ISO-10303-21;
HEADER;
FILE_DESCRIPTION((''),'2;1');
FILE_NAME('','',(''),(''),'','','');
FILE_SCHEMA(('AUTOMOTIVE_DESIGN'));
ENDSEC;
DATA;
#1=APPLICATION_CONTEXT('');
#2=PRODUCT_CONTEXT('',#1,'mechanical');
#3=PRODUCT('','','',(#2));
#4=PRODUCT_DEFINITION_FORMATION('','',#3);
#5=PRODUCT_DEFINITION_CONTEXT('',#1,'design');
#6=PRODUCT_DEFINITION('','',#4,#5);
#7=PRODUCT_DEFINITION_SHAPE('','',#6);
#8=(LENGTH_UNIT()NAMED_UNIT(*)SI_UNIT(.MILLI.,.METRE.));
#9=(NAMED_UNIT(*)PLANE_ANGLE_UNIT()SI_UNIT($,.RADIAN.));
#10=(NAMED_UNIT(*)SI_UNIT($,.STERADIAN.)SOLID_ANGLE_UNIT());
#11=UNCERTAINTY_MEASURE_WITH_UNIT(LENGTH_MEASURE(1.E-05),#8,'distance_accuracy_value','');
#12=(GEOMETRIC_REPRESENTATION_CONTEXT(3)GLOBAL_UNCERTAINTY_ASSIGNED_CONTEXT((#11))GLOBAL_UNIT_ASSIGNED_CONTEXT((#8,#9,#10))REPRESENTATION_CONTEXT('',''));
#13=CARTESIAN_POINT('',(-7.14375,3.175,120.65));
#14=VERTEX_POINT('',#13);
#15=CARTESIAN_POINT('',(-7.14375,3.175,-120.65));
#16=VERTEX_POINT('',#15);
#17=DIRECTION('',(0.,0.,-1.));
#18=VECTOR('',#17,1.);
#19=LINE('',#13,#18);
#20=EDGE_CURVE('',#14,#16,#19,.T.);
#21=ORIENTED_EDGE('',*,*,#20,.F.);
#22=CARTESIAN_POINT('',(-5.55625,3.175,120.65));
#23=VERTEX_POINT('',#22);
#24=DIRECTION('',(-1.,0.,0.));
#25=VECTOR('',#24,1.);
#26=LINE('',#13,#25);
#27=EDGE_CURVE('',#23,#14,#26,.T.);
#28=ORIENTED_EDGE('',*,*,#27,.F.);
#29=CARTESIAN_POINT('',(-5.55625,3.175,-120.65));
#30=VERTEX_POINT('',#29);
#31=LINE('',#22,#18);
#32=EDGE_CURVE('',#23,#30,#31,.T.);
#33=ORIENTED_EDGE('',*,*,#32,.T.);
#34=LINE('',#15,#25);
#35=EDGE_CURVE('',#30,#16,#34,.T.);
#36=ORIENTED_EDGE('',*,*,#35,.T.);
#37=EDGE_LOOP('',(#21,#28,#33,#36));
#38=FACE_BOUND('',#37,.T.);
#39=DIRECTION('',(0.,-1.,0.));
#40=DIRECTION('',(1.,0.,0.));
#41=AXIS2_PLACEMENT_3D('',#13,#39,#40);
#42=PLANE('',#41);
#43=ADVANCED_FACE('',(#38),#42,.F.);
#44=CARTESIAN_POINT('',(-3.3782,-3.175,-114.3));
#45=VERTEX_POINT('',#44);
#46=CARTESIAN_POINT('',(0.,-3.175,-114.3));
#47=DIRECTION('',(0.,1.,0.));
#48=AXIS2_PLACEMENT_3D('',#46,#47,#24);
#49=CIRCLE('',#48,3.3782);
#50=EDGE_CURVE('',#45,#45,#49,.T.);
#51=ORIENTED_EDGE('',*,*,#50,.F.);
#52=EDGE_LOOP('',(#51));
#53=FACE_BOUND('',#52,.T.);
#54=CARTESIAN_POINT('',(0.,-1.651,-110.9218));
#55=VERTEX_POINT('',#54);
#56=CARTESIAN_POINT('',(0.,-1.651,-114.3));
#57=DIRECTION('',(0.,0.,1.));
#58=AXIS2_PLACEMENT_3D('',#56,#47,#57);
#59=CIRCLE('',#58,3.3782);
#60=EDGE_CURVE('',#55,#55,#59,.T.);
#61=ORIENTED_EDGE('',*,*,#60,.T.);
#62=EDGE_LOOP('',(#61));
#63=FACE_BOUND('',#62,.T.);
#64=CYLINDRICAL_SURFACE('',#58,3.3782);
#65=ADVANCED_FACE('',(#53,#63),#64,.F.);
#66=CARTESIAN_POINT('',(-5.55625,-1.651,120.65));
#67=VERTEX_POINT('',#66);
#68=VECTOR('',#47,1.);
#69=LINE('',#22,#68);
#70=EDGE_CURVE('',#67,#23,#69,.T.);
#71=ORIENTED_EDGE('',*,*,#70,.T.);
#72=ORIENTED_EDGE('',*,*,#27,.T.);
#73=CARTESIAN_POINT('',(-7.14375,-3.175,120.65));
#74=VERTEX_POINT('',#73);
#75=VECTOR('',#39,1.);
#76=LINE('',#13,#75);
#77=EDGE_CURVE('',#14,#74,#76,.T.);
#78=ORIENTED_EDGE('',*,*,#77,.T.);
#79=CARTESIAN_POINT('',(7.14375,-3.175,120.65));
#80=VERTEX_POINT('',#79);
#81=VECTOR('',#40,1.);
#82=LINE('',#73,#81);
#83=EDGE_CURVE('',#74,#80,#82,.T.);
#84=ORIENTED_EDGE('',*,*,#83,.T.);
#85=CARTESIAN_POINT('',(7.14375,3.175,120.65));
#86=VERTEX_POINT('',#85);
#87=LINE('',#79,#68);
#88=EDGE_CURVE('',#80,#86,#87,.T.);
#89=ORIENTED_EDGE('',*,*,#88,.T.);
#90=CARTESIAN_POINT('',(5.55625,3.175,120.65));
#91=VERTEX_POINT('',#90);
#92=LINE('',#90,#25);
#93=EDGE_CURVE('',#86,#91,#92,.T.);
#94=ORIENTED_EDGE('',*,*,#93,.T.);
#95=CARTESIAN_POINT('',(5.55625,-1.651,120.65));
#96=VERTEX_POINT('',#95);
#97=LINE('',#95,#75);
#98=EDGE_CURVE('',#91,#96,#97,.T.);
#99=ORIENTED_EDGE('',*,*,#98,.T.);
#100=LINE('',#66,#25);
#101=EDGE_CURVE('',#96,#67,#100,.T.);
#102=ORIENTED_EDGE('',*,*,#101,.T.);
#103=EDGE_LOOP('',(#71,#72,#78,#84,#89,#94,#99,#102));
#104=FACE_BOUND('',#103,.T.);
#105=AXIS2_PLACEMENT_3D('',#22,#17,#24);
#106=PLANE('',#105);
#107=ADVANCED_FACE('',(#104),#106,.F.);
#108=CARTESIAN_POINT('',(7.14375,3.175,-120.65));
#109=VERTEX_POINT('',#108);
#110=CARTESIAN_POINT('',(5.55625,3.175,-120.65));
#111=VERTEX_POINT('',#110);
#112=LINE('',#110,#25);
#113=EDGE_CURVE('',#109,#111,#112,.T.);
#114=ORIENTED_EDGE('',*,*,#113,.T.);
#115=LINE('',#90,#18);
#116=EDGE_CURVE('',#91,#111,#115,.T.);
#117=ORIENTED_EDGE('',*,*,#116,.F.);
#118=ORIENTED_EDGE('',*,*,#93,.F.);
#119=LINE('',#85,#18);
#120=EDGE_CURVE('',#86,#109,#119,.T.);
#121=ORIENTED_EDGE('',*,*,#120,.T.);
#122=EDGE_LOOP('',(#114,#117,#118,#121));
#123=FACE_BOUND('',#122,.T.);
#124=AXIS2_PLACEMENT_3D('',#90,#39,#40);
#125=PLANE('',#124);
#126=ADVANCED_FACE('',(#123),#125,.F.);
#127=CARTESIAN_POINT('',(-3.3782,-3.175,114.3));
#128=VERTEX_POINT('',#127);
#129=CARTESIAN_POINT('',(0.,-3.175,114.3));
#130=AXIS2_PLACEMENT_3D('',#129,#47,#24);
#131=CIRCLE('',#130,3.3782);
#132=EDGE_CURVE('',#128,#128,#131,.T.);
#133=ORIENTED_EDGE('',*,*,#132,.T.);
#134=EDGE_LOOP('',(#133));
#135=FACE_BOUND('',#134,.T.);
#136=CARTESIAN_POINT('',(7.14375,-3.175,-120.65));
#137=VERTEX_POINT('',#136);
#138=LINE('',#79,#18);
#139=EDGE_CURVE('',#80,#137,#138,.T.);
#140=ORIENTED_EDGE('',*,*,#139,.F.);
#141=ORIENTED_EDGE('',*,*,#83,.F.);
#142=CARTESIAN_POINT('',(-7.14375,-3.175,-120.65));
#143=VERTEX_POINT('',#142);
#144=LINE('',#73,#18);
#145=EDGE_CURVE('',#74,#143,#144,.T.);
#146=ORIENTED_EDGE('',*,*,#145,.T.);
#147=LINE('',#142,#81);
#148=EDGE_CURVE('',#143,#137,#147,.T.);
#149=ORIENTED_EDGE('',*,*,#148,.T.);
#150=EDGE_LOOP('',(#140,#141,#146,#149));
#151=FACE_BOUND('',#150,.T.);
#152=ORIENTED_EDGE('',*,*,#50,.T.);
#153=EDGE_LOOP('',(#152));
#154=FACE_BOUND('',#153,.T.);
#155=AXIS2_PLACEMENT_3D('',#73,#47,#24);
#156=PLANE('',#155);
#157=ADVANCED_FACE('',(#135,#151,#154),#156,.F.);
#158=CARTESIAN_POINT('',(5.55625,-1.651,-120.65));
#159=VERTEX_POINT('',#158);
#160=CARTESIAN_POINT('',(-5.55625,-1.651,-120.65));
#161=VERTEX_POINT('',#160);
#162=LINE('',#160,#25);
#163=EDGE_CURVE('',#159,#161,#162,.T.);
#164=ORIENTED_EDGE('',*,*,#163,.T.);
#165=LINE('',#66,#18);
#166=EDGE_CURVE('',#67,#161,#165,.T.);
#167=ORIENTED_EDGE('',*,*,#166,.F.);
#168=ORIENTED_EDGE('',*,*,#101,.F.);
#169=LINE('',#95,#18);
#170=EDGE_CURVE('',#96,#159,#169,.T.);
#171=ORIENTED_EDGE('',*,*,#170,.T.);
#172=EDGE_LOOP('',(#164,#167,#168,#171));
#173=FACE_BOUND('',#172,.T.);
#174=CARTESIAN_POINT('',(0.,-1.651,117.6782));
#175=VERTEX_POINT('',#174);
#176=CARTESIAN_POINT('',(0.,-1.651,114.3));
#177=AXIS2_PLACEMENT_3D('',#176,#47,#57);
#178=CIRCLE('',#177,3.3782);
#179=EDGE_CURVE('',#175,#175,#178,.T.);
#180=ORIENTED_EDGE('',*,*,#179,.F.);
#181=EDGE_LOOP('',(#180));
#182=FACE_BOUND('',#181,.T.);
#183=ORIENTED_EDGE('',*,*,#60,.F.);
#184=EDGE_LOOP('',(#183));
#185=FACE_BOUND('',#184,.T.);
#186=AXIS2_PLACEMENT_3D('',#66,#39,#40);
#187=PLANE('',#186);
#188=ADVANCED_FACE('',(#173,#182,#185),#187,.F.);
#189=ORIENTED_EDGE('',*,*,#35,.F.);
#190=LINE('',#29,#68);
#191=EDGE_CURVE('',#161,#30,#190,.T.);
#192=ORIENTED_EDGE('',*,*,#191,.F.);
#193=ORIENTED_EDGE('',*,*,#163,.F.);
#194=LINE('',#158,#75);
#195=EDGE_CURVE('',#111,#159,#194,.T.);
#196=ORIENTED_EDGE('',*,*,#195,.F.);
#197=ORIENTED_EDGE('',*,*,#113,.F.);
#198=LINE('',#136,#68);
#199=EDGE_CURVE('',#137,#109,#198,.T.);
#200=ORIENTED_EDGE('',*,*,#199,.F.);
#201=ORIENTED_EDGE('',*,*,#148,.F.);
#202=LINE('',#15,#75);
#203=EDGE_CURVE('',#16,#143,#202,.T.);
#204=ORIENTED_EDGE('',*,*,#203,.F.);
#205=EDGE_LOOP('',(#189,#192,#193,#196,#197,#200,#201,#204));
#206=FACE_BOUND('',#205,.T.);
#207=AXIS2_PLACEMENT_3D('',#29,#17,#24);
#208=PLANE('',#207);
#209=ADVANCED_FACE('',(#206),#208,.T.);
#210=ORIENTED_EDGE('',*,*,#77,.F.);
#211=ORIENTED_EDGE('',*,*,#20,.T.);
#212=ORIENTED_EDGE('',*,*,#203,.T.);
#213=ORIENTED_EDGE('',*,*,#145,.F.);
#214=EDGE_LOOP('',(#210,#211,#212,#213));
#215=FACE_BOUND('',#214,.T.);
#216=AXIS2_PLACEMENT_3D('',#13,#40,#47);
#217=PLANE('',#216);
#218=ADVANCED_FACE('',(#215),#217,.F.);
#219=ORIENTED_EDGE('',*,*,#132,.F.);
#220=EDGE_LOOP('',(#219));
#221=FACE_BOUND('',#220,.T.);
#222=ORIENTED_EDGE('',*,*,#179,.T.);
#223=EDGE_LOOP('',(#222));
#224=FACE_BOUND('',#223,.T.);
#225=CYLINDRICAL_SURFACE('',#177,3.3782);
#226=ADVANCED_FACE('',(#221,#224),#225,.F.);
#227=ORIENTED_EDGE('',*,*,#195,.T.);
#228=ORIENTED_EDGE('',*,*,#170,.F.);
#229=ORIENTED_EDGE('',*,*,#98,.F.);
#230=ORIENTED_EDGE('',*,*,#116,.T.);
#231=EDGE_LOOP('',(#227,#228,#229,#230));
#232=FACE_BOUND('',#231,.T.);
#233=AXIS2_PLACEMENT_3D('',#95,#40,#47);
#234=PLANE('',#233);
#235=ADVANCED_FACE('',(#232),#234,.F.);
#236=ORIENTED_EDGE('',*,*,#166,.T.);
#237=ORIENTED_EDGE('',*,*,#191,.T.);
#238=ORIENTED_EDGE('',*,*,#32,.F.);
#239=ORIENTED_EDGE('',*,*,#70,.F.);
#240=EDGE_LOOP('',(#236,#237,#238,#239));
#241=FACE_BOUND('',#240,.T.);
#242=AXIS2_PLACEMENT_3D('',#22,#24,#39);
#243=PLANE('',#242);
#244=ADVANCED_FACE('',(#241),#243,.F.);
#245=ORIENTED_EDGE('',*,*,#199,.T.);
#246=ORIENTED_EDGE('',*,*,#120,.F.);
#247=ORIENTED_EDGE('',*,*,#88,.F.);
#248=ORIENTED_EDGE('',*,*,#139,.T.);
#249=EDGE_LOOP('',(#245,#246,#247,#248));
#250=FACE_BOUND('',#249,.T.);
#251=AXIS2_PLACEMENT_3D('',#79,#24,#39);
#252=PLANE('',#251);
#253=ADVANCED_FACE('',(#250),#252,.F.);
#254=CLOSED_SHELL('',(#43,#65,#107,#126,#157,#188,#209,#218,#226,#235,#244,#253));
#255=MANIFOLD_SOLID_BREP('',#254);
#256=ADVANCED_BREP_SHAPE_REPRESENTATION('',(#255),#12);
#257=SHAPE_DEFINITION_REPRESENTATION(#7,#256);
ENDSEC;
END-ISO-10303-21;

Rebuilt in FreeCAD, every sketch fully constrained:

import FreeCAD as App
import Part
import Sketcher

V = App.Vector
Q = App.Units.Quantity


def add_polygon(sketch, points):
    """Adds a closed chain of lines whose ends are joined by coincident constraints."""
    first, n = sketch.GeometryCount, len(points)
    for a, b in zip(points, points[1:] + points[:1]):
        sketch.addGeometry(Part.LineSegment(App.Vector(*a, 0), App.Vector(*b, 0)), False)
    for i in range(n):
        sketch.addConstraint(Sketcher.Constraint("Coincident", first + i, 2, first + (i + 1) % n, 1))

doc = App.newDocument("Part")
params = doc.addObject("Spreadsheet::Sheet", "Params")
for row, (alias, value) in enumerate([
    ("sketch1_height", "0.25 in"),
    ("sketch1_height2", "0.19 in"),
    ("sketch1_width", "0.5625 in"),
    ("pad1_length", "9.5 in"),
    ("sketch2_diameter", "0.266 in"),
    ("hole_diameter", "0.266 in"),
], start=1):
    params.set(f"A{row}", alias)
    params.set(f"B{row}", "=" + value)
    params.setAlias(f"B{row}", alias)

body = doc.addObject("PartDesign::Body", "Body")

# Sketch on XY plane
sketch1 = doc.addObject("Sketcher::SketchObject", "Sketch")
body.addObject(sketch1)
sketch1.AttachmentSupport = (doc.XY_Plane, [""])
sketch1.MapMode = "FlatFace"
add_polygon(sketch1, [(-7.1, 3.2), (-7.1, -3.2), (7.1, -3.2), (7.1, 3.2), (5.6, 3.2), (5.6, -1.7), (-5.6, -1.7), (-5.6, 3.2)])  # lines 0-7
sketch1.addConstraint([
    Sketcher.Constraint("Vertical", 0),
    Sketcher.Constraint("Horizontal", 1),
    Sketcher.Constraint("Vertical", 2),
    Sketcher.Constraint("Horizontal", 3),
    Sketcher.Constraint("Vertical", 4),
    Sketcher.Constraint("Horizontal", 5),
    Sketcher.Constraint("Vertical", 6),
    Sketcher.Constraint("Horizontal", 7),
    Sketcher.Constraint("Symmetric", 0, 2, 2, 2, -1, 1),
    Sketcher.Constraint("Symmetric", 3, 2, 6, 2, -2),
    Sketcher.Constraint("DistanceY", 0, 2, 0, 1, Q("0.25 in")),
    Sketcher.Constraint("DistanceY", 4, 2, 4, 1, Q("0.19 in")),
    Sketcher.Constraint("DistanceX", 0, 2, 3, 2, Q("0.5 in")),
    Sketcher.Constraint("DistanceX", 1, 1, 1, 2, Q("0.5625 in")),
])
sketch1.setExpression("Constraints[18]", "Params.sketch1_height")
sketch1.setExpression("Constraints[19]", "Params.sketch1_height2")
sketch1.setExpression("Constraints[21]", "Params.sketch1_width")
pad1 = doc.addObject("PartDesign::Pad", "Pad")
body.addObject(pad1)
pad1.Profile = sketch1
pad1.setExpression("Length", "Params.pad1_length")
pad1.Midplane = True

# Sketch on XZ plane
sketch2 = doc.addObject("Sketcher::SketchObject", "Sketch001")
body.addObject(sketch2)
sketch2.AttachmentSupport = (doc.XZ_Plane, [""])
sketch2.MapMode = "FlatFace"
sketch2.AttachmentOffset = App.Placement(V(0, 0, 0.065 * 25.4), App.Rotation())
sketch2.addGeometry([
    Part.Circle(V(0, -114.3, 0), V(0, 0, 1), 3.4),
    Part.Circle(V(0, 114.3, 0), V(0, 0, 1), 3.4),
], False)
sketch2.addConstraint([
    Sketcher.Constraint("Equal", 0, 1),
    Sketcher.Constraint("Symmetric", 0, 3, 1, 3, -1, 1),
    Sketcher.Constraint("PointOnObject", 0, 3, -2),
    Sketcher.Constraint("Diameter", 0, Q("0.266 in")),
    Sketcher.Constraint("DistanceY", 0, 3, 1, 3, Q("9 in")),
])
sketch2.setExpression("Constraints[3]", "Params.sketch2_diameter")
doc.recompute()
hole = doc.addObject("PartDesign::Hole", "Hole")
body.addObject(hole)
hole.Profile = sketch2
hole.ThreadType = "None"
hole.setExpression("Diameter", "Params.hole_diameter")
hole.DepthType = "ThroughAll"
hole.Reversed = True

doc.recompute()
